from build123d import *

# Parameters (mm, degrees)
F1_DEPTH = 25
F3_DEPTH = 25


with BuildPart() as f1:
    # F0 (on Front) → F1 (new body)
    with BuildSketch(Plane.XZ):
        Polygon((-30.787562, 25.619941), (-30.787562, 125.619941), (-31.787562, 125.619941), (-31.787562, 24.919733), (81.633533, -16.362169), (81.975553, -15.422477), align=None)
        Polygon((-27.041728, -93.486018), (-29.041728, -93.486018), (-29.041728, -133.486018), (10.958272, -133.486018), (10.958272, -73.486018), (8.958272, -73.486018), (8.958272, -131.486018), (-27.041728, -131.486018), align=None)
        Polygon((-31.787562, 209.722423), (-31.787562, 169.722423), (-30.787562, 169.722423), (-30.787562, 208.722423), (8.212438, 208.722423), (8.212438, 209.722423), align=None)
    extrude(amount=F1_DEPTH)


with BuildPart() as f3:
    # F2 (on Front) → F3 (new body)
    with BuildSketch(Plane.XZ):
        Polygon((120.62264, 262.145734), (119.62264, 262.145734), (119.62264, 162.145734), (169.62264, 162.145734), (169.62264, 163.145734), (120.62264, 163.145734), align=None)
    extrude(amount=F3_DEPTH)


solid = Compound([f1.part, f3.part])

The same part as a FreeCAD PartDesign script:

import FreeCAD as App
import Part
import Sketcher
from FreeCAD import Vector
Q = App.Units.Quantity

doc = App.newDocument("Part")
body = doc.addObject("PartDesign::Body", "Body")
body.AllowCompound = True

# Sketch on XZ plane
sketch1 = doc.addObject("Sketcher::SketchObject", "Sketch")
body.addObject(sketch1)
sketch1.AttachmentSupport = (doc.XZ_Plane, [""])
sketch1.MapMode = "FlatFace"
sketch1.addGeometry([
    Part.LineSegment(Vector(-30.8, 25.6, 0), Vector(-30.8, 125.6, 0)),  # 0
    Part.LineSegment(Vector(-30.8, 125.6, 0), Vector(-31.8, 125.6, 0)),  # 1
    Part.LineSegment(Vector(-31.8, 125.6, 0), Vector(-31.8, 24.9, 0)),  # 2
    Part.LineSegment(Vector(-31.8, 24.9, 0), Vector(81.6, -16.4, 0)),  # 3
    Part.LineSegment(Vector(81.6, -16.4, 0), Vector(82, -15.4, 0)),  # 4
    Part.LineSegment(Vector(82, -15.4, 0), Vector(-30.8, 25.6, 0)),  # 5
    Part.LineSegment(Vector(-27, -93.5, 0), Vector(-29, -93.5, 0)),  # 6
    Part.LineSegment(Vector(-29, -93.5, 0), Vector(-29, -133.5, 0)),  # 7
    Part.LineSegment(Vector(-29, -133.5, 0), Vector(11, -133.5, 0)),  # 8
    Part.LineSegment(Vector(11, -133.5, 0), Vector(11, -73.5, 0)),  # 9
    Part.LineSegment(Vector(11, -73.5, 0), Vector(9, -73.5, 0)),  # 10
    Part.LineSegment(Vector(9, -73.5, 0), Vector(9, -131.5, 0)),  # 11
    Part.LineSegment(Vector(9, -131.5, 0), Vector(-27, -131.5, 0)),  # 12
    Part.LineSegment(Vector(-27, -131.5, 0), Vector(-27, -93.5, 0)),  # 13
    Part.LineSegment(Vector(-31.8, 209.7, 0), Vector(-31.8, 169.7, 0)),  # 14
    Part.LineSegment(Vector(-31.8, 169.7, 0), Vector(-30.8, 169.7, 0)),  # 15
    Part.LineSegment(Vector(-30.8, 169.7, 0), Vector(-30.8, 208.7, 0)),  # 16
    Part.LineSegment(Vector(-30.8, 208.7, 0), Vector(8.2, 208.7, 0)),  # 17
    Part.LineSegment(Vector(8.2, 208.7, 0), Vector(8.2, 209.7, 0)),  # 18
    Part.LineSegment(Vector(8.2, 209.7, 0), Vector(-31.8, 209.7, 0)),  # 19
], False)
sketch1.addConstraint([
    Sketcher.Constraint("Coincident", 0, 2, 1, 1),
    Sketcher.Constraint("Coincident", 1, 2, 2, 1),
    Sketcher.Constraint("Coincident", 2, 2, 3, 1),
    Sketcher.Constraint("Coincident", 3, 2, 4, 1),
    Sketcher.Constraint("Coincident", 4, 2, 5, 1),
    Sketcher.Constraint("Coincident", 5, 2, 0, 1),
    Sketcher.Constraint("Coincident", 6, 2, 7, 1),
    Sketcher.Constraint("Coincident", 7, 2, 8, 1),
    Sketcher.Constraint("Coincident", 8, 2, 9, 1),
    Sketcher.Constraint("Coincident", 9, 2, 10, 1),
    Sketcher.Constraint("Coincident", 10, 2, 11, 1),
    Sketcher.Constraint("Coincident", 11, 2, 12, 1),
    Sketcher.Constraint("Coincident", 12, 2, 13, 1),
    Sketcher.Constraint("Coincident", 13, 2, 6, 1),
    Sketcher.Constraint("Coincident", 14, 2, 15, 1),
    Sketcher.Constraint("Coincident", 15, 2, 16, 1),
    Sketcher.Constraint("Coincident", 16, 2, 17, 1),
    Sketcher.Constraint("Coincident", 17, 2, 18, 1),
    Sketcher.Constraint("Coincident", 18, 2, 19, 1),
    Sketcher.Constraint("Coincident", 19, 2, 14, 1),
    Sketcher.Constraint("Vertical", 0),
    Sketcher.Constraint("Horizontal", 1),
    Sketcher.Constraint("Vertical", 2),
    Sketcher.Constraint("Horizontal", 6),
    Sketcher.Constraint("Vertical", 7),
    Sketcher.Constraint("Horizontal", 8),
    Sketcher.Constraint("Vertical", 9),
    Sketcher.Constraint("Horizontal", 10),
    Sketcher.Constraint("Vertical", 11),
    Sketcher.Constraint("Horizontal", 12),
    Sketcher.Constraint("Vertical", 13),
    Sketcher.Constraint("Vertical", 14),
    Sketcher.Constraint("Horizontal", 15),
    Sketcher.Constraint("Vertical", 16),
    Sketcher.Constraint("Horizontal", 17),
    Sketcher.Constraint("Vertical", 18),
    Sketcher.Constraint("Horizontal", 19),
    Sketcher.Constraint("Perpendicular", 3, 4),
    Sketcher.Constraint("Perpendicular", 4, 5),
    Sketcher.Constraint("Vertical", 2, 2, 14, 2),
    Sketcher.Constraint("Vertical", 5, 2, 15, 2),
    Sketcher.Constraint("Equal", 6, 10),
    Sketcher.Constraint("Equal", 8, 19),
    Sketcher.Constraint("Equal", 19, 7),
    Sketcher.Constraint("Equal", 7, 14),
    Sketcher.Constraint("Equal", 17, 16),
    Sketcher.Constraint("DistanceX", 1, 2, 1, 1, Q("1 mm")),
    Sketcher.Constraint("DistanceX", 6, 2, 6, 1, Q("2 mm")),
    Sketcher.Constraint("DistanceX", 8, 1, 8, 2, Q("40 mm")),
    Sketcher.Constraint("DistanceY", 0, 1, 0, 2, Q("100 mm")),
    Sketcher.Constraint("DistanceY", 9, 1, 9, 2, Q("60 mm")),
    Sketcher.Constraint("DistanceY", 11, 2, 11, 1, Q("58 mm")),
    Sketcher.Constraint("Angle", 3, Q("-20 deg")),
    Sketcher.Constraint("Distance", 4, Q("0.999999 mm")),
    Sketcher.Constraint("Distance", 5, Q("120.000001 mm")),
    Sketcher.Constraint("DistanceY", 4, 2, 14, 2, Q("185.1449 mm")),
    Sketcher.Constraint("DistanceY", -1, 1, 0, 2, Q("125.619941 mm")),
    Sketcher.Constraint("DistanceY", 6, 2, -1, 1, Q("93.486018 mm")),
    Sketcher.Constraint("DistanceX", -1, 1, 8, 2, Q("10.958272 mm")),
    Sketcher.Constraint("DistanceX", 6, 2, 3, 2, Q("110.675261 mm")),
])
pad1 = doc.addObject("PartDesign::Pad", "Pad")
body.addObject(pad1)
pad1.Profile = sketch1
pad1.Length = 25
body2 = doc.addObject("PartDesign::Body", "Body001")

# Sketch on XZ plane
sketch2 = doc.addObject("Sketcher::SketchObject", "Sketch001")
body2.addObject(sketch2)
sketch2.AttachmentSupport = (doc.getObject("XZ_Plane001"), [""])
sketch2.MapMode = "FlatFace"
sketch2.addGeometry([
    Part.LineSegment(Vector(120.6, 262.1, 0), Vector(119.6, 262.1, 0)),  # 0
    Part.LineSegment(Vector(119.6, 262.1, 0), Vector(119.6, 162.1, 0)),  # 1
    Part.LineSegment(Vector(119.6, 162.1, 0), Vector(169.6, 162.1, 0)),  # 2
    Part.LineSegment(Vector(169.6, 162.1, 0), Vector(169.6, 163.1, 0)),  # 3
    Part.LineSegment(Vector(169.6, 163.1, 0), Vector(120.6, 163.1, 0)),  # 4
    Part.LineSegment(Vector(120.6, 163.1, 0), Vector(120.6, 262.1, 0)),  # 5
], False)
sketch2.addConstraint([
    Sketcher.Constraint("Coincident", 0, 2, 1, 1),
    Sketcher.Constraint("Coincident", 1, 2, 2, 1),
    Sketcher.Constraint("Coincident", 2, 2, 3, 1),
    Sketcher.Constraint("Coincident", 3, 2, 4, 1),
    Sketcher.Constraint("Coincident", 4, 2, 5, 1),
    Sketcher.Constraint("Coincident", 5, 2, 0, 1),
    Sketcher.Constraint("Horizontal", 0),
    Sketcher.Constraint("Vertical", 1),
    Sketcher.Constraint("Horizontal", 2),
    Sketcher.Constraint("Vertical", 3),
    Sketcher.Constraint("Horizontal", 4),
    Sketcher.Constraint("Vertical", 5),
    Sketcher.Constraint("Equal", 0, 3),
    Sketcher.Constraint("DistanceX", 0, 2, 0, 1, Q("1 mm")),
    Sketcher.Constraint("DistanceX", 2, 1, 2, 2, Q("50 mm")),
    Sketcher.Constraint("DistanceY", 1, 2, 1, 1, Q("100 mm")),
    Sketcher.Constraint("DistanceX", -1, 1, 0, 2, Q("119.62264 mm")),
    Sketcher.Constraint("DistanceY", -1, 1, 0, 2, Q("262.145734 mm")),
])
pad2 = doc.addObject("PartDesign::Pad", "Pad001")
body2.addObject(pad2)
pad2.Profile = sketch2
pad2.Length = 25

doc.recompute()
